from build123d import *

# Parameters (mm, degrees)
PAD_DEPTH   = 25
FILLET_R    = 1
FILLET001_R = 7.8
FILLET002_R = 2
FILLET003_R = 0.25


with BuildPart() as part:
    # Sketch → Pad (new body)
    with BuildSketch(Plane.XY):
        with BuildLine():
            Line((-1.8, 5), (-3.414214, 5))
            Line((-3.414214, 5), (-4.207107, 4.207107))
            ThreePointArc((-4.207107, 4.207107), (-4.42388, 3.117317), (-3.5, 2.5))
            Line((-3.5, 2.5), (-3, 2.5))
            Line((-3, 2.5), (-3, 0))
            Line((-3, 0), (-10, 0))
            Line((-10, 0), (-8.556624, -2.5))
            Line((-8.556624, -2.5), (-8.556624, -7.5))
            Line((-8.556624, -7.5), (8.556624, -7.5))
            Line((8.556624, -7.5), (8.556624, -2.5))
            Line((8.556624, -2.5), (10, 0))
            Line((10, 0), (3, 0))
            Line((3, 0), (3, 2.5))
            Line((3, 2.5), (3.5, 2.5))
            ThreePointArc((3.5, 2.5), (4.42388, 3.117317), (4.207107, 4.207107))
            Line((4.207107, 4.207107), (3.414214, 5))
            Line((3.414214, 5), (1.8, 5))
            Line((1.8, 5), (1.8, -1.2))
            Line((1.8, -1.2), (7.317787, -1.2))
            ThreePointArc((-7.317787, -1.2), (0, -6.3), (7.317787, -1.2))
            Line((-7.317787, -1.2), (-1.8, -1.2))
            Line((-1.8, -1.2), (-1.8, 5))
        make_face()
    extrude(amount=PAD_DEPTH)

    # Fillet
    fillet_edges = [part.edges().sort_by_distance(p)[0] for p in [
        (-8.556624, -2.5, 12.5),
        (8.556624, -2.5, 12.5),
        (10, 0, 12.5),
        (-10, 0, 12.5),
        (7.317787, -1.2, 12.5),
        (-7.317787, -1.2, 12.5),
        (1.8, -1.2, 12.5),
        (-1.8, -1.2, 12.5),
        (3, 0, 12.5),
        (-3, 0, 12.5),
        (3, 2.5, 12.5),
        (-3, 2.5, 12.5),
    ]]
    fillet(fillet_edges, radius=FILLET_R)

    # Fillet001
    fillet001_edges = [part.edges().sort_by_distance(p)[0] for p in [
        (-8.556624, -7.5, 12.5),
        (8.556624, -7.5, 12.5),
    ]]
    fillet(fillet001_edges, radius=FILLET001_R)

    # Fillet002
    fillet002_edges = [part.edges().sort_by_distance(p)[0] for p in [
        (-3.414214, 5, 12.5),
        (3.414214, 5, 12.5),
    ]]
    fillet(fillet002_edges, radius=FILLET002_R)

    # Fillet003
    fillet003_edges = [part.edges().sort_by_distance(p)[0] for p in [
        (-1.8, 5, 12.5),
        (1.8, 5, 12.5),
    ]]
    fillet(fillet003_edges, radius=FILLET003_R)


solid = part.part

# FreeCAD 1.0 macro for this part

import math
import FreeCAD as App
import Part
import Sketcher

V = App.Vector
Q = App.Units.Quantity


def edges_at(feature, points):
    """Names of the edges that pass closest to the given points."""
    edges = feature.Shape.Edges
    near = lambda p: min(range(len(edges)), key=lambda i: edges[i].distToShape(Part.Vertex(*p))[0])
    return sorted({f"Edge{near(p) + 1}" for p in points})

doc = App.newDocument("Part")
body = doc.addObject("PartDesign::Body", "Body")

# Sketch on XY plane
sketch1 = body.newObject("Sketcher::SketchObject", "Sketch")
sketch1.AttachmentSupport = (doc.getObject("XY_Plane"), [""])
sketch1.MapMode = "FlatFace"
sketch1.addGeometry(Part.LineSegment(V(-1.8, 5, 0), V(-3.414214, 5, 0)), False)
sketch1.addGeometry(Part.LineSegment(V(-3.414214, 5, 0), V(-4.207107, 4.207107, 0)), False)
sketch1.addGeometry(Part.ArcOfCircle(Part.Circle(V(-3.5, 3.5, 0), V(0, 0, 1), 1), math.radians(134.999994), math.radians(270.000013)), False)
sketch1.addGeometry(Part.LineSegment(V(-3.5, 2.5, 0), V(-3, 2.5, 0)), False)
sketch1.addGeometry(Part.LineSegment(V(-3, 2.5, 0), V(-3, 0, 0)), False)
sketch1.addGeometry(Part.LineSegment(V(-3, 0, 0), V(-10, 0, 0)), False)
sketch1.addGeometry(Part.LineSegment(V(-10, 0, 0), V(-8.556624, -2.5, 0)), False)
sketch1.addGeometry(Part.LineSegment(V(-8.556624, -2.5, 0), V(-8.556624, -7.5, 0)), False)
sketch1.addGeometry(Part.LineSegment(V(-8.556624, -7.5, 0), V(8.556624, -7.5, 0)), False)
sketch1.addGeometry(Part.LineSegment(V(8.556624, -7.5, 0), V(8.556624, -2.5, 0)), False)
sketch1.addGeometry(Part.LineSegment(V(8.556624, -2.5, 0), V(10, 0, 0)), False)
sketch1.addGeometry(Part.LineSegment(V(10, 0, 0), V(3, 0, 0)), False)
sketch1.addGeometry(Part.LineSegment(V(3, 0, 0), V(3, 2.5, 0)), False)
sketch1.addGeometry(Part.LineSegment(V(3, 2.5, 0), V(3.5, 2.5, 0)), False)
sketch1.addGeometry(Part.ArcOfCircle(Part.Circle(V(3.5, 3.5, 0), V(0, 0, 1), 1), math.radians(-90.000013), math.radians(45.000006)), False)
sketch1.addGeometry(Part.LineSegment(V(4.207107, 4.207107, 0), V(3.414214, 5, 0)), False)
sketch1.addGeometry(Part.LineSegment(V(3.414214, 5, 0), V(1.8, 5, 0)), False)
sketch1.addGeometry(Part.LineSegment(V(1.8, 5, 0), V(1.8, -1.2, 0)), False)
sketch1.addGeometry(Part.LineSegment(V(1.8, -1.2, 0), V(7.317787, -1.2, 0)), False)
sketch1.addGeometry(Part.ArcOfCircle(Part.Circle(V(0, 1.500001, 0), V(0, 0, 1), 7.800001), math.radians(-159.74775), math.radians(-20.25225)), False)
sketch1.addGeometry(Part.LineSegment(V(-7.317787, -1.2, 0), V(-1.8, -1.2, 0)), False)
sketch1.addGeometry(Part.LineSegment(V(-1.8, -1.2, 0), V(-1.8, 5, 0)), False)
sketch1.addConstraint(Sketcher.Constraint("Coincident", 0, 2, 1, 1))
sketch1.addConstraint(Sketcher.Constraint("Tangent", 1, 2, 2, 1))
sketch1.addConstraint(Sketcher.Constraint("Tangent", 2, 2, 3, 1))
sketch1.addConstraint(Sketcher.Constraint("Coincident", 3, 2, 4, 1))
sketch1.addConstraint(Sketcher.Constraint("Coincident", 4, 2, 5, 1))
sketch1.addConstraint(Sketcher.Constraint("Coincident", 5, 2, 6, 1))
sketch1.addConstraint(Sketcher.Constraint("Coincident", 6, 2, 7, 1))
sketch1.addConstraint(Sketcher.Constraint("Coincident", 7, 2, 8, 1))
sketch1.addConstraint(Sketcher.Constraint("Coincident", 8, 2, 9, 1))
sketch1.addConstraint(Sketcher.Constraint("Coincident", 9, 2, 10, 1))
sketch1.addConstraint(Sketcher.Constraint("Coincident", 10, 2, 11, 1))
sketch1.addConstraint(Sketcher.Constraint("Coincident", 11, 2, 12, 1))
sketch1.addConstraint(Sketcher.Constraint("Coincident", 12, 2, 13, 1))
sketch1.addConstraint(Sketcher.Constraint("Tangent", 13, 2, 14, 1))
sketch1.addConstraint(Sketcher.Constraint("Tangent", 14, 2, 15, 1))
sketch1.addConstraint(Sketcher.Constraint("Coincident", 15, 2, 16, 1))
sketch1.addConstraint(Sketcher.Constraint("Coincident", 16, 2, 17, 1))
sketch1.addConstraint(Sketcher.Constraint("Coincident", 17, 2, 18, 1))
sketch1.addConstraint(Sketcher.Constraint("Coincident", 18, 2, 19, 2))
sketch1.addConstraint(Sketcher.Constraint("Coincident", 19, 1, 20, 1))
sketch1.addConstraint(Sketcher.Constraint("Coincident", 20, 2, 21, 1))
sketch1.addConstraint(Sketcher.Constraint("Coincident", 21, 2, 0, 1))
sketch1.addConstraint(Sketcher.Constraint("Horizontal", 0))
sketch1.addConstraint(Sketcher.Constraint("Horizontal", 3))
sketch1.addConstraint(Sketcher.Constraint("Vertical", 4))
sketch1.addConstraint(Sketcher.Constraint("Horizontal", 5))
sketch1.addConstraint(Sketcher.Constraint("Vertical", 7))
sketch1.addConstraint(Sketcher.Constraint("Horizontal", 8))
sketch1.addConstraint(Sketcher.Constraint("Vertical", 9))
sketch1.addConstraint(Sketcher.Constraint("Horizontal", 11))
sketch1.addConstraint(Sketcher.Constraint("Vertical", 12))
sketch1.addConstraint(Sketcher.Constraint("Horizontal", 13))
sketch1.addConstraint(Sketcher.Constraint("Horizontal", 16))
sketch1.addConstraint(Sketcher.Constraint("Vertical", 17))
sketch1.addConstraint(Sketcher.Constraint("Horizontal", 18))
sketch1.addConstraint(Sketcher.Constraint("Horizontal", 20))
sketch1.addConstraint(Sketcher.Constraint("Vertical", 21))
sketch1.addConstraint(Sketcher.Constraint("Equal", 2, 14))
sketch1.addConstraint(Sketcher.Constraint("Symmetric", 5, 2, 10, 2, -1, 1))
sketch1.addConstraint(Sketcher.Constraint("Symmetric", 2, 3, 14, 3, -2))
sketch1.addConstraint(Sketcher.Constraint("Symmetric", 6, 2, 9, 2, -2))
sketch1.addConstraint(Sketcher.Constraint("Symmetric", 4, 2, 11, 2, -2))
sketch1.addConstraint(Sketcher.Constraint("Symmetric", 0, 2, 15, 2, -2))
sketch1.addConstraint(Sketcher.Constraint("Symmetric", 18, 2, 19, 1, -2))
sketch1.addConstraint(Sketcher.Constraint("Perpendicular", 1, 15))
sketch1.addConstraint(Sketcher.Constraint("Equal", 0, 16))
sketch1.addConstraint(Sketcher.Constraint("Radius", 2, Q("1 mm")))
sketch1.addConstraint(Sketcher.Constraint("Radius", 19, Q("7.800001 mm")))
sketch1.addConstraint(Sketcher.Constraint("DistanceX", 5, 2, 5, 1, Q("7 mm")))
sketch1.addConstraint(Sketcher.Constraint("DistanceY", 7, 2, 7, 1, Q("5 mm")))
sketch1.addConstraint(Sketcher.Constraint("Angle", 6, Q("-59.999994 deg")))
sketch1.addConstraint(Sketcher.Constraint("DistanceX", 3, 1, 3, 2, Q("0.5 mm")))
sketch1.addConstraint(Sketcher.Constraint("DistanceY", 4, 2, 4, 1, Q("2.5 mm")))
sketch1.addConstraint(Sketcher.Constraint("DistanceY", 17, 2, 17, 1, Q("6.2 mm")))
sketch1.addConstraint(Sketcher.Constraint("DistanceY", -1, 1, 0, 2, Q("5 mm")))
sketch1.addConstraint(Sketcher.Constraint("DistanceX", 3, 2, -1, 1, Q("3 mm")))
sketch1.addConstraint(Sketcher.Constraint("DistanceY", 19, 3, 2, 3, Q("1.999999 mm")))
sketch1.addConstraint(Sketcher.Constraint("DistanceY", 6, 2, 2, 2, Q("5 mm")))
sketch1.addConstraint(Sketcher.Constraint("DistanceX", -1, 1, 16, 2, Q("1.8 mm")))
pad1 = body.newObject("PartDesign::Pad", "Pad")
pad1.Profile = sketch1
pad1.Length = 25
doc.recompute()

fillet = body.newObject("PartDesign::Fillet", "Fillet")
fillet.Base = (pad1, edges_at(pad1, [
    (-8.557, -2.5, 12.5),
    (8.557, -2.5, 12.5),
    (10, 0, 12.5),
    (-10, 0, 12.5),
    (7.318, -1.2, 12.5),
    (-7.318, -1.2, 12.5),
    (1.8, -1.2, 12.5),
    (-1.8, -1.2, 12.5),
    (3, 0, 12.5),
    (-3, 0, 12.5),
    (3, 2.5, 12.5),
    (-3, 2.5, 12.5),
]))
fillet.Radius = 1
doc.recompute()

fillet2 = body.newObject("PartDesign::Fillet", "Fillet001")
fillet2.Base = (fillet, edges_at(fillet, [(-8.557, -7.5, 12.5), (8.557, -7.5, 12.5)]))
fillet2.Radius = 7.8
doc.recompute()

fillet3 = body.newObject("PartDesign::Fillet", "Fillet002")
fillet3.Base = (fillet2, edges_at(fillet2, [(-3.414, 5, 12.5), (3.414, 5, 12.5)]))
fillet3.Radius = 2
doc.recompute()

fillet4 = body.newObject("PartDesign::Fillet", "Fillet003")
fillet4.Base = (fillet3, edges_at(fillet3, [(-1.8, 5, 12.5), (1.8, 5, 12.5)]))
fillet4.Radius = 0.25

doc.recompute()
